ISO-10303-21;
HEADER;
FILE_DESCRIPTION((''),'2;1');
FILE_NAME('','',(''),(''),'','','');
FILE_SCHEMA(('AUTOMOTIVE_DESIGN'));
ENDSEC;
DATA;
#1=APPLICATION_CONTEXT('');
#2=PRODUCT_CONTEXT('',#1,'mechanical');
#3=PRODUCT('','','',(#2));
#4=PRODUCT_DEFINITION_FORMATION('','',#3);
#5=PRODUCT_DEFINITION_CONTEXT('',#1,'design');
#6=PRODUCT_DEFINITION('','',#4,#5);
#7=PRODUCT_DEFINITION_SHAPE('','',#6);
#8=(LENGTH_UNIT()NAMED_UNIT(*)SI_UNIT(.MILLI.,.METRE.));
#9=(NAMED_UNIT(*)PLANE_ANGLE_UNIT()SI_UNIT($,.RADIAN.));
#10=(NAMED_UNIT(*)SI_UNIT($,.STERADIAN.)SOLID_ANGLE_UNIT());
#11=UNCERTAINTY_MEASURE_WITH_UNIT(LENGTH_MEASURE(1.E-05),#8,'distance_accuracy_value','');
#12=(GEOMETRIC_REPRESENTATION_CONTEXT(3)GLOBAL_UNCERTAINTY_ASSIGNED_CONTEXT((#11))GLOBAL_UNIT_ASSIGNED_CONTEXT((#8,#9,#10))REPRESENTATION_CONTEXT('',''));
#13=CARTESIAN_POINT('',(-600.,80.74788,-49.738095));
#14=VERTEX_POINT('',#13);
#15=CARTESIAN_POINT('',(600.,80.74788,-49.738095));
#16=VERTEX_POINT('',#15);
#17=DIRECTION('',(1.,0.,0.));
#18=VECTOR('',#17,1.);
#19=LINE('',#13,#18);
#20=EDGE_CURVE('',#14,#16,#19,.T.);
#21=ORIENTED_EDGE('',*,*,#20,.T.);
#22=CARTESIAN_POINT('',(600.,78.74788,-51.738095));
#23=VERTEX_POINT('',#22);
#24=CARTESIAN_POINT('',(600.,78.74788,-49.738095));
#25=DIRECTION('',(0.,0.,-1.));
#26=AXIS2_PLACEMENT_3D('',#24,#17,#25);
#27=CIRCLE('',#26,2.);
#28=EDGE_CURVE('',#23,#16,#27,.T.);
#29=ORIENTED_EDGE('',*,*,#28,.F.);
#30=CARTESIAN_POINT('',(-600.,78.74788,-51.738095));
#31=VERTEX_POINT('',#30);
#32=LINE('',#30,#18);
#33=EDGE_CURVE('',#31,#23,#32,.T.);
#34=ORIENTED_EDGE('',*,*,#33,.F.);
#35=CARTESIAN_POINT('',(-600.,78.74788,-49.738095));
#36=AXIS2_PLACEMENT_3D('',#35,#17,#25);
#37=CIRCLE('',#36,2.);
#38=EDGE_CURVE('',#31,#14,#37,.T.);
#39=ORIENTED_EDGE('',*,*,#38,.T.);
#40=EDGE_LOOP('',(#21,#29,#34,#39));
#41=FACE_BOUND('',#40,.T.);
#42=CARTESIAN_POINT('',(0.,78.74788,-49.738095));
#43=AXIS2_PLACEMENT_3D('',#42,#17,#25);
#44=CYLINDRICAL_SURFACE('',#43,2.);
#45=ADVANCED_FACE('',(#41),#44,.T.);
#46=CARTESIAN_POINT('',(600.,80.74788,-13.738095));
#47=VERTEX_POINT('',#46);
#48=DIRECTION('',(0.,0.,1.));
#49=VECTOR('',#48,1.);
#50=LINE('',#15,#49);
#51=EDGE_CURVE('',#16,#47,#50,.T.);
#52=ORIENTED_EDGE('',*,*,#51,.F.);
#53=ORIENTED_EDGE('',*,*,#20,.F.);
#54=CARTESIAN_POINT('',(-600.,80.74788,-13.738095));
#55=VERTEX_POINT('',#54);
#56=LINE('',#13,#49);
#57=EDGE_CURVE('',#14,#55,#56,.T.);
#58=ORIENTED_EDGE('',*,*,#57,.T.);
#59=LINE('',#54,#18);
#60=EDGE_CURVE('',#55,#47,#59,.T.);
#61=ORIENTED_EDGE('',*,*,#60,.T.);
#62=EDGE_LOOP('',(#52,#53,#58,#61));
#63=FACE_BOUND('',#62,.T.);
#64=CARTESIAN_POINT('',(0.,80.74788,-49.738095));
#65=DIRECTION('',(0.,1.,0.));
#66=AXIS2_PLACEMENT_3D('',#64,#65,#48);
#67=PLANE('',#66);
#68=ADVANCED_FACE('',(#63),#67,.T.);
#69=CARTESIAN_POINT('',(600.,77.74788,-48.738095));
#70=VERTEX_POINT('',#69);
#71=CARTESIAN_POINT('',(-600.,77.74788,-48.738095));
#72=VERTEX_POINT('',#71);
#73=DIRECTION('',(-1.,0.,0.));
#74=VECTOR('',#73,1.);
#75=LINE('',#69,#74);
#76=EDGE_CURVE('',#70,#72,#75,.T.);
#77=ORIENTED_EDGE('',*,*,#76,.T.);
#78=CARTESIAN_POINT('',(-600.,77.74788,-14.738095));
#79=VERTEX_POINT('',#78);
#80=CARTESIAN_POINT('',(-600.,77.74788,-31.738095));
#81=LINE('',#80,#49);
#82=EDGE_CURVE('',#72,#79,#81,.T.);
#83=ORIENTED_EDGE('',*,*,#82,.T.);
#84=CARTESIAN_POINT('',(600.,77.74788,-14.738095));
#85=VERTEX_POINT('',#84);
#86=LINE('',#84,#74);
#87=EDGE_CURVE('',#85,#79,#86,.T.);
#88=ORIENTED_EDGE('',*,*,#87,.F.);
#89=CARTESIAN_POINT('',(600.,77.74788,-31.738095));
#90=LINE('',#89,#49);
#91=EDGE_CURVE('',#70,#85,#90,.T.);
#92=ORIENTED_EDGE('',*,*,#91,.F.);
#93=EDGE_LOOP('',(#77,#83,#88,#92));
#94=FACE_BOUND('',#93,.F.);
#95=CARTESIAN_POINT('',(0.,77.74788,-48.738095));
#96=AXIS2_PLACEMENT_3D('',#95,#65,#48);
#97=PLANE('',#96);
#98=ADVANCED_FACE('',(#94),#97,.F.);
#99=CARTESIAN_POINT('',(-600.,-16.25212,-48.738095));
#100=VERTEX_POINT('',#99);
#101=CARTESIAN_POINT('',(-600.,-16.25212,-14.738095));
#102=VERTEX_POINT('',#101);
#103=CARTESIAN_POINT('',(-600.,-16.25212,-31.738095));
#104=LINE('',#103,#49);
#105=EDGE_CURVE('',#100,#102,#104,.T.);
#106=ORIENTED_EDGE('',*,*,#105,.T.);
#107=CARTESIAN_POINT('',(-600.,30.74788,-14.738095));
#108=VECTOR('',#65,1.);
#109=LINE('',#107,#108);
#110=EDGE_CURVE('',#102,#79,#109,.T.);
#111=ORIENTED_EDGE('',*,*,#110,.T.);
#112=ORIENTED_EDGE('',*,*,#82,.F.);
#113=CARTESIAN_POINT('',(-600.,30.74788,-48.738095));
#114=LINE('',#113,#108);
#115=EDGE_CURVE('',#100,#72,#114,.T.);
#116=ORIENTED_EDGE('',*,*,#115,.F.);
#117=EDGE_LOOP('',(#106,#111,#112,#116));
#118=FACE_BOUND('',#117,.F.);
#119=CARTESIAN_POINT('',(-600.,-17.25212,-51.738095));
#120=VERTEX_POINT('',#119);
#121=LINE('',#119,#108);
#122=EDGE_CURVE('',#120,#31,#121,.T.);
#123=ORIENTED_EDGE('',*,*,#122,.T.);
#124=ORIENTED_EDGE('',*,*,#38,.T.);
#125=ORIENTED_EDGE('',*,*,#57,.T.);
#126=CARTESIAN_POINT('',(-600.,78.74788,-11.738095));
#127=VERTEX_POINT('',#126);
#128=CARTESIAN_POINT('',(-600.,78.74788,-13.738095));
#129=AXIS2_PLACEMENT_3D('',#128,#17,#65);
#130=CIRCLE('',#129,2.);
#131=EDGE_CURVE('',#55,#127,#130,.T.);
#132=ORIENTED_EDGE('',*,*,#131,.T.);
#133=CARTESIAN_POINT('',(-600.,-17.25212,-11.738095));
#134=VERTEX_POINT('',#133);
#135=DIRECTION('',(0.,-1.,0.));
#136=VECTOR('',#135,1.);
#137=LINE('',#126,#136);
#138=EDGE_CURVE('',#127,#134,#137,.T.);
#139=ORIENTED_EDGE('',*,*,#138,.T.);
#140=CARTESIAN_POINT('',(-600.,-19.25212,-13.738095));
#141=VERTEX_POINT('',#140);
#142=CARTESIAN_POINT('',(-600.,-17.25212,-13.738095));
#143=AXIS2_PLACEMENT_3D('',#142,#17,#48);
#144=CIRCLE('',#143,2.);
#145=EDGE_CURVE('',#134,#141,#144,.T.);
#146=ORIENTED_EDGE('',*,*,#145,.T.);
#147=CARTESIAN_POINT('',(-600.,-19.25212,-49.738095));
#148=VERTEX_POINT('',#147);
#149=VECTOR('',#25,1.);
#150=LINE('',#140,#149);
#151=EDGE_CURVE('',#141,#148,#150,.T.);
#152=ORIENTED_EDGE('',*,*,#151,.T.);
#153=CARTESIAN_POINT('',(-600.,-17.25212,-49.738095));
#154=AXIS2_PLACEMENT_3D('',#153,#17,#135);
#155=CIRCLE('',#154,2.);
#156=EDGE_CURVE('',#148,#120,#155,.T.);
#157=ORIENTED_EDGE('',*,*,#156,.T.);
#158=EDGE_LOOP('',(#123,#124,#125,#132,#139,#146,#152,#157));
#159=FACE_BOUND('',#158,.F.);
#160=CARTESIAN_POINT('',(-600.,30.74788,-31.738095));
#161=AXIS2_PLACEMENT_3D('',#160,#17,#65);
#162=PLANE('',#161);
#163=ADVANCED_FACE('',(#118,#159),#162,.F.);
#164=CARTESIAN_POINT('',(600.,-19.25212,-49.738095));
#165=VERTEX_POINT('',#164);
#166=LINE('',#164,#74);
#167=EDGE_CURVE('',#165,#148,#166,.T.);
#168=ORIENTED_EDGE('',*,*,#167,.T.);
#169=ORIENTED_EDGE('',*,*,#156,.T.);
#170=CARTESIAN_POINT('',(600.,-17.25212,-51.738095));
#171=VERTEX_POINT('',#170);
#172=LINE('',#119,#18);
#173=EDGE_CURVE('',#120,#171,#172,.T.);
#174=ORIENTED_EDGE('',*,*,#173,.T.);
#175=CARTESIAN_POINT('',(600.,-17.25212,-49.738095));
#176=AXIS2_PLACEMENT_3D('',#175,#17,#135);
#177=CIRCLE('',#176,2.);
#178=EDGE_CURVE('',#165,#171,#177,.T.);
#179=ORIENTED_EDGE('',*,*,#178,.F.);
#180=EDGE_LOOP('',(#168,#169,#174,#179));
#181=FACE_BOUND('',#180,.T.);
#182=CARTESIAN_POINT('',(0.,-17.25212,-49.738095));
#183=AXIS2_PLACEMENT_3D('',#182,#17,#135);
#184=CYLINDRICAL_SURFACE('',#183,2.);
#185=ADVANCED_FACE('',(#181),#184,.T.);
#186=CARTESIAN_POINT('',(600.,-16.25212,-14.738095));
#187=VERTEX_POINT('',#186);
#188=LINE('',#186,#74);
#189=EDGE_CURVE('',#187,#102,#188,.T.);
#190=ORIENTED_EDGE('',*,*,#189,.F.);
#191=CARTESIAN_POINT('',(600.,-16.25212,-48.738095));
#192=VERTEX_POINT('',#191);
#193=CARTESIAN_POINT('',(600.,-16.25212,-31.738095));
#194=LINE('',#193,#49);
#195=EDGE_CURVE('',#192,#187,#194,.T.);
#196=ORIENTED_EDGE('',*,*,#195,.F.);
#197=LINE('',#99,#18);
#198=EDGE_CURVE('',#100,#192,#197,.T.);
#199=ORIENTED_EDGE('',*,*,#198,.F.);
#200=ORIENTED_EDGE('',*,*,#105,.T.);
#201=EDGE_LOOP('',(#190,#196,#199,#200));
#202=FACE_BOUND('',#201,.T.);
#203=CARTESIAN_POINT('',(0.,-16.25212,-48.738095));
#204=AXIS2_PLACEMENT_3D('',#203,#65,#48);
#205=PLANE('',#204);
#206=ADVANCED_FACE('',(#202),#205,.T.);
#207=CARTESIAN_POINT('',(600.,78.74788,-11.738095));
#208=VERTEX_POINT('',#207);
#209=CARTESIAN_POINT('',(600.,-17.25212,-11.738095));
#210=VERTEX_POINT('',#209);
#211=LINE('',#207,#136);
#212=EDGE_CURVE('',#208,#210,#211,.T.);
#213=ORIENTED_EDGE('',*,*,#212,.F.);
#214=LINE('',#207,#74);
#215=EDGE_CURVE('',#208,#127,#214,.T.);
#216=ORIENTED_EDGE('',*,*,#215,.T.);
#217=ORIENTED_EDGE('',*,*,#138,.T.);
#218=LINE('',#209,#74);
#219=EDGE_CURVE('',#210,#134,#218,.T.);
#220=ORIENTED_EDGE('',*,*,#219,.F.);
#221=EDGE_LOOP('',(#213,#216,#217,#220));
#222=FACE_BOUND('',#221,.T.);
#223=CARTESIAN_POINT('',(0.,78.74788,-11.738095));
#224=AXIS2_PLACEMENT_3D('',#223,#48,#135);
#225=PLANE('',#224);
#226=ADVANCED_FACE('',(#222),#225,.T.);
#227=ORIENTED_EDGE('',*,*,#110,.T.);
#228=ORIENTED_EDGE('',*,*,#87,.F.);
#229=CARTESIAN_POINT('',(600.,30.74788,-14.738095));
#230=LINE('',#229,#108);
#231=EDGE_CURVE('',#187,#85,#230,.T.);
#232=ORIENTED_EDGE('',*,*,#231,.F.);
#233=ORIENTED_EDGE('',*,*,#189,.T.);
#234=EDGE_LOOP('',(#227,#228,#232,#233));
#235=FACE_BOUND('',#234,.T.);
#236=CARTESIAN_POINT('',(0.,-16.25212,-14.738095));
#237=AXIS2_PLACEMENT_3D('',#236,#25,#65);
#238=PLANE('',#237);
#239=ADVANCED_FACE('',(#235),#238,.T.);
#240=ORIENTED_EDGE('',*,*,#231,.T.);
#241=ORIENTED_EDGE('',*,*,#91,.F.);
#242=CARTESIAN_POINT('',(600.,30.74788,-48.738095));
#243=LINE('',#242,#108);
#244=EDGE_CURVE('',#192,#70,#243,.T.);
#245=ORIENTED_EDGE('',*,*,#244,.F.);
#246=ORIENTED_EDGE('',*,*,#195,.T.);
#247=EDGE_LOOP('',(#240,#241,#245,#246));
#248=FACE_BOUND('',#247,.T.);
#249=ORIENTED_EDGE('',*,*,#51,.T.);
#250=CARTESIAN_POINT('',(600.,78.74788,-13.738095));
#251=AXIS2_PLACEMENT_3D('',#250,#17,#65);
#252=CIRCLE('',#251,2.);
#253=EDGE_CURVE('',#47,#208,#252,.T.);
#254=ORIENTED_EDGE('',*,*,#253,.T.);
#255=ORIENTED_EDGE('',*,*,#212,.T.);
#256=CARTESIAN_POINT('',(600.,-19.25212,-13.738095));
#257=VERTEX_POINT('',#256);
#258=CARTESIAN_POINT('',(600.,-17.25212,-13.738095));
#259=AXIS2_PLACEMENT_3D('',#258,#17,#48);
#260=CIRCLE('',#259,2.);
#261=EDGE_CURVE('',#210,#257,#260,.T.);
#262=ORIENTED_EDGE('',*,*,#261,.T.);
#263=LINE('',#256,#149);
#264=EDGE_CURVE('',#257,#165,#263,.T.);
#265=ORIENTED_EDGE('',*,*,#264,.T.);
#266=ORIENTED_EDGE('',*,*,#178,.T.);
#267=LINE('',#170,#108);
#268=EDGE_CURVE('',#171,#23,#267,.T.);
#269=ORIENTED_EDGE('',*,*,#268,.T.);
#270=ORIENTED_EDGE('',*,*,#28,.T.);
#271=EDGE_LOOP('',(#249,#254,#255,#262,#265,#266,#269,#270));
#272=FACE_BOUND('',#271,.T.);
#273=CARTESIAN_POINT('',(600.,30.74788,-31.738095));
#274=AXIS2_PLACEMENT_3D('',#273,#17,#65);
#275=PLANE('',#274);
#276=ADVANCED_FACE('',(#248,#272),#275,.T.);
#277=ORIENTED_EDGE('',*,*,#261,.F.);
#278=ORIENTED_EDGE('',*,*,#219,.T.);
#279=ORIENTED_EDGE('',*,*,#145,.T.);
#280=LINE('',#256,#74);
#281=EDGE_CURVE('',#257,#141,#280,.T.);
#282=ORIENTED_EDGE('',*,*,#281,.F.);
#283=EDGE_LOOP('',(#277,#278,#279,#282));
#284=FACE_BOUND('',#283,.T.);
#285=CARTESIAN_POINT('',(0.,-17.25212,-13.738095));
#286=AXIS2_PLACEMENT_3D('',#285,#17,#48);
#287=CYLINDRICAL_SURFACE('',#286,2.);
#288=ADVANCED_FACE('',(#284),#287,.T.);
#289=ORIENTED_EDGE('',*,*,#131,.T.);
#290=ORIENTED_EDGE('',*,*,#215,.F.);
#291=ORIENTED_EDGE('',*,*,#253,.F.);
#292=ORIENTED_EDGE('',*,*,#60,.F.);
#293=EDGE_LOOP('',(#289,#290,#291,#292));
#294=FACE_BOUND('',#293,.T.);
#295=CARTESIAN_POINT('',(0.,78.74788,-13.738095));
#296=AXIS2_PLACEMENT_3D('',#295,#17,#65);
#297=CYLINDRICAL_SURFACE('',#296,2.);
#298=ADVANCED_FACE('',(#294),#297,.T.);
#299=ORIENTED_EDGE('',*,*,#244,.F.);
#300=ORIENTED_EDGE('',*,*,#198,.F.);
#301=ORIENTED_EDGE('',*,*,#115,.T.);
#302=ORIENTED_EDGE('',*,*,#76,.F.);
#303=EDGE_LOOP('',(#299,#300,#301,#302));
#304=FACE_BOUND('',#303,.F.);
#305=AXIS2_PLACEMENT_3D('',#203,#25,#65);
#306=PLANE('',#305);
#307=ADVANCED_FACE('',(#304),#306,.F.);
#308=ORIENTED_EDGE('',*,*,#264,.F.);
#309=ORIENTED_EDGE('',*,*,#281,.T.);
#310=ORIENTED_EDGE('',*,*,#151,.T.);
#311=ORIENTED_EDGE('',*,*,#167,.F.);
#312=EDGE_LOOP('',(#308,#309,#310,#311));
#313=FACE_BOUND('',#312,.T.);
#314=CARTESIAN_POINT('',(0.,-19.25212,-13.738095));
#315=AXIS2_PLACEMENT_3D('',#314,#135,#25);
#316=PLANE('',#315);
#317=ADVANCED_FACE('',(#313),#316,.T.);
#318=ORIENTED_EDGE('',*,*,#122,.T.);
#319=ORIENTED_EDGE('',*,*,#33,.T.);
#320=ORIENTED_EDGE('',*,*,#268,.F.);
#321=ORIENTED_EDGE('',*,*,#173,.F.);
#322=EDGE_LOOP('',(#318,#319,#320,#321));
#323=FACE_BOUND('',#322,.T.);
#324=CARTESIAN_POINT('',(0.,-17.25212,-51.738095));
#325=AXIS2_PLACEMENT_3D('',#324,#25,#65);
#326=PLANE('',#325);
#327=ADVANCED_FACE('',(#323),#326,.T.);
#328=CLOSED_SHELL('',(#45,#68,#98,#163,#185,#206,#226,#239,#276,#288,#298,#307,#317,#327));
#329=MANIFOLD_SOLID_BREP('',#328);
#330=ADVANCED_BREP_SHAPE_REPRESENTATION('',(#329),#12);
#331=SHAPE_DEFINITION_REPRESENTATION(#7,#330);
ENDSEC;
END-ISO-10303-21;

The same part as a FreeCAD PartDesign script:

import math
import FreeCAD as App
import Part
import Sketcher
Q = App.Units.Quantity

doc = App.newDocument("Part")
body = doc.addObject("PartDesign::Body", "Body")

sketch1 = body.newObject("Sketcher::SketchObject", "Sketch")
sketch1.AttachmentSupport = (doc.getObject("YZ_Plane"), [""])
sketch1.MapMode = "FlatFace"
sketch1.addGeometry([
    Part.ArcOfCircle(Part.Circle(App.Vector(-17.3, -49.7, 0), App.Vector(0, 0, 1), 2), math.radians(180), math.radians(270)),
    Part.LineSegment(App.Vector(-17.3, -51.7, 0), App.Vector(78.7, -51.7, 0)),
    Part.ArcOfCircle(Part.Circle(App.Vector(78.7, -49.7, 0), App.Vector(0, 0, 1), 2), math.radians(-90), math.radians(0)),
    Part.LineSegment(App.Vector(80.7, -49.7, 0), App.Vector(80.7, -13.7, 0)),
    Part.ArcOfCircle(Part.Circle(App.Vector(78.7, -13.7, 0), App.Vector(0, 0, 1), 2), math.radians(0), math.radians(90)),
    Part.LineSegment(App.Vector(78.7, -11.7, 0), App.Vector(-17.3, -11.7, 0)),
    Part.ArcOfCircle(Part.Circle(App.Vector(-17.3, -13.7, 0), App.Vector(0, 0, 1), 2), math.radians(90), math.radians(180)),
    Part.LineSegment(App.Vector(-19.3, -13.7, 0), App.Vector(-19.3, -49.7, 0)),
    Part.LineSegment(App.Vector(77.7, -48.7, 0), App.Vector(-16.3, -48.7, 0)),
    Part.LineSegment(App.Vector(-16.3, -48.7, 0), App.Vector(-16.3, -14.7, 0)),
    Part.LineSegment(App.Vector(-16.3, -14.7, 0), App.Vector(77.7, -14.7, 0)),
    Part.LineSegment(App.Vector(77.7, -14.7, 0), App.Vector(77.7, -48.7, 0)),
], False)
sketch1.addConstraint([
    Sketcher.Constraint("Tangent", 0, 2, 1, 1),
    Sketcher.Constraint("Tangent", 1, 2, 2, 1),
    Sketcher.Constraint("Tangent", 2, 2, 3, 1),
    Sketcher.Constraint("Tangent", 3, 2, 4, 1),
    Sketcher.Constraint("Tangent", 4, 2, 5, 1),
    Sketcher.Constraint("Tangent", 5, 2, 6, 1),
    Sketcher.Constraint("Tangent", 6, 2, 7, 1),
    Sketcher.Constraint("Tangent", 7, 2, 0, 1),
    Sketcher.Constraint("Coincident", 8, 2, 9, 1),
    Sketcher.Constraint("Coincident", 9, 2, 10, 1),
    Sketcher.Constraint("Coincident", 10, 2, 11, 1),
    Sketcher.Constraint("Coincident", 11, 2, 8, 1),
    Sketcher.Constraint("Horizontal", 1),
    Sketcher.Constraint("Vertical", 3),
    Sketcher.Constraint("Horizontal", 5),
    Sketcher.Constraint("Vertical", 7),
    Sketcher.Constraint("Horizontal", 8),
    Sketcher.Constraint("Vertical", 9),
    Sketcher.Constraint("Horizontal", 10),
    Sketcher.Constraint("Vertical", 11),
    Sketcher.Constraint("Equal", 0, 2),
    Sketcher.Constraint("Equal", 2, 4),
    Sketcher.Constraint("Equal", 4, 6),
    Sketcher.Constraint("Radius", 0, Q("2 mm")),
    Sketcher.Constraint("DistanceX", 1, 1, 1, 2, Q("96 mm")),
    Sketcher.Constraint("DistanceX", 8, 2, 8, 1, Q("94 mm")),
    Sketcher.Constraint("DistanceY", 3, 1, 3, 2, Q("36 mm")),
    Sketcher.Constraint("DistanceY", 9, 1, 9, 2, Q("34 mm")),
    Sketcher.Constraint("DistanceX", 0, 3, 8, 2, Q("1 mm")),
    Sketcher.Constraint("DistanceY", 0, 3, 8, 2, Q("1 mm")),
    Sketcher.Constraint("DistanceX", 0, 3, -1, 1, Q("17.25212 mm")),
    Sketcher.Constraint("DistanceY", 0, 3, -1, 1, Q("49.738095 mm")),
])
pad1 = body.newObject("PartDesign::Pad", "Pad")
pad1.Profile = sketch1
pad1.Length = 1200
pad1.Midplane = True
body2 = doc.addObject("PartDesign::Body", "Body001")
doc.recompute()

body2.BaseFeature = body
doc.recompute()
body.Visibility = False

doc.recompute()
